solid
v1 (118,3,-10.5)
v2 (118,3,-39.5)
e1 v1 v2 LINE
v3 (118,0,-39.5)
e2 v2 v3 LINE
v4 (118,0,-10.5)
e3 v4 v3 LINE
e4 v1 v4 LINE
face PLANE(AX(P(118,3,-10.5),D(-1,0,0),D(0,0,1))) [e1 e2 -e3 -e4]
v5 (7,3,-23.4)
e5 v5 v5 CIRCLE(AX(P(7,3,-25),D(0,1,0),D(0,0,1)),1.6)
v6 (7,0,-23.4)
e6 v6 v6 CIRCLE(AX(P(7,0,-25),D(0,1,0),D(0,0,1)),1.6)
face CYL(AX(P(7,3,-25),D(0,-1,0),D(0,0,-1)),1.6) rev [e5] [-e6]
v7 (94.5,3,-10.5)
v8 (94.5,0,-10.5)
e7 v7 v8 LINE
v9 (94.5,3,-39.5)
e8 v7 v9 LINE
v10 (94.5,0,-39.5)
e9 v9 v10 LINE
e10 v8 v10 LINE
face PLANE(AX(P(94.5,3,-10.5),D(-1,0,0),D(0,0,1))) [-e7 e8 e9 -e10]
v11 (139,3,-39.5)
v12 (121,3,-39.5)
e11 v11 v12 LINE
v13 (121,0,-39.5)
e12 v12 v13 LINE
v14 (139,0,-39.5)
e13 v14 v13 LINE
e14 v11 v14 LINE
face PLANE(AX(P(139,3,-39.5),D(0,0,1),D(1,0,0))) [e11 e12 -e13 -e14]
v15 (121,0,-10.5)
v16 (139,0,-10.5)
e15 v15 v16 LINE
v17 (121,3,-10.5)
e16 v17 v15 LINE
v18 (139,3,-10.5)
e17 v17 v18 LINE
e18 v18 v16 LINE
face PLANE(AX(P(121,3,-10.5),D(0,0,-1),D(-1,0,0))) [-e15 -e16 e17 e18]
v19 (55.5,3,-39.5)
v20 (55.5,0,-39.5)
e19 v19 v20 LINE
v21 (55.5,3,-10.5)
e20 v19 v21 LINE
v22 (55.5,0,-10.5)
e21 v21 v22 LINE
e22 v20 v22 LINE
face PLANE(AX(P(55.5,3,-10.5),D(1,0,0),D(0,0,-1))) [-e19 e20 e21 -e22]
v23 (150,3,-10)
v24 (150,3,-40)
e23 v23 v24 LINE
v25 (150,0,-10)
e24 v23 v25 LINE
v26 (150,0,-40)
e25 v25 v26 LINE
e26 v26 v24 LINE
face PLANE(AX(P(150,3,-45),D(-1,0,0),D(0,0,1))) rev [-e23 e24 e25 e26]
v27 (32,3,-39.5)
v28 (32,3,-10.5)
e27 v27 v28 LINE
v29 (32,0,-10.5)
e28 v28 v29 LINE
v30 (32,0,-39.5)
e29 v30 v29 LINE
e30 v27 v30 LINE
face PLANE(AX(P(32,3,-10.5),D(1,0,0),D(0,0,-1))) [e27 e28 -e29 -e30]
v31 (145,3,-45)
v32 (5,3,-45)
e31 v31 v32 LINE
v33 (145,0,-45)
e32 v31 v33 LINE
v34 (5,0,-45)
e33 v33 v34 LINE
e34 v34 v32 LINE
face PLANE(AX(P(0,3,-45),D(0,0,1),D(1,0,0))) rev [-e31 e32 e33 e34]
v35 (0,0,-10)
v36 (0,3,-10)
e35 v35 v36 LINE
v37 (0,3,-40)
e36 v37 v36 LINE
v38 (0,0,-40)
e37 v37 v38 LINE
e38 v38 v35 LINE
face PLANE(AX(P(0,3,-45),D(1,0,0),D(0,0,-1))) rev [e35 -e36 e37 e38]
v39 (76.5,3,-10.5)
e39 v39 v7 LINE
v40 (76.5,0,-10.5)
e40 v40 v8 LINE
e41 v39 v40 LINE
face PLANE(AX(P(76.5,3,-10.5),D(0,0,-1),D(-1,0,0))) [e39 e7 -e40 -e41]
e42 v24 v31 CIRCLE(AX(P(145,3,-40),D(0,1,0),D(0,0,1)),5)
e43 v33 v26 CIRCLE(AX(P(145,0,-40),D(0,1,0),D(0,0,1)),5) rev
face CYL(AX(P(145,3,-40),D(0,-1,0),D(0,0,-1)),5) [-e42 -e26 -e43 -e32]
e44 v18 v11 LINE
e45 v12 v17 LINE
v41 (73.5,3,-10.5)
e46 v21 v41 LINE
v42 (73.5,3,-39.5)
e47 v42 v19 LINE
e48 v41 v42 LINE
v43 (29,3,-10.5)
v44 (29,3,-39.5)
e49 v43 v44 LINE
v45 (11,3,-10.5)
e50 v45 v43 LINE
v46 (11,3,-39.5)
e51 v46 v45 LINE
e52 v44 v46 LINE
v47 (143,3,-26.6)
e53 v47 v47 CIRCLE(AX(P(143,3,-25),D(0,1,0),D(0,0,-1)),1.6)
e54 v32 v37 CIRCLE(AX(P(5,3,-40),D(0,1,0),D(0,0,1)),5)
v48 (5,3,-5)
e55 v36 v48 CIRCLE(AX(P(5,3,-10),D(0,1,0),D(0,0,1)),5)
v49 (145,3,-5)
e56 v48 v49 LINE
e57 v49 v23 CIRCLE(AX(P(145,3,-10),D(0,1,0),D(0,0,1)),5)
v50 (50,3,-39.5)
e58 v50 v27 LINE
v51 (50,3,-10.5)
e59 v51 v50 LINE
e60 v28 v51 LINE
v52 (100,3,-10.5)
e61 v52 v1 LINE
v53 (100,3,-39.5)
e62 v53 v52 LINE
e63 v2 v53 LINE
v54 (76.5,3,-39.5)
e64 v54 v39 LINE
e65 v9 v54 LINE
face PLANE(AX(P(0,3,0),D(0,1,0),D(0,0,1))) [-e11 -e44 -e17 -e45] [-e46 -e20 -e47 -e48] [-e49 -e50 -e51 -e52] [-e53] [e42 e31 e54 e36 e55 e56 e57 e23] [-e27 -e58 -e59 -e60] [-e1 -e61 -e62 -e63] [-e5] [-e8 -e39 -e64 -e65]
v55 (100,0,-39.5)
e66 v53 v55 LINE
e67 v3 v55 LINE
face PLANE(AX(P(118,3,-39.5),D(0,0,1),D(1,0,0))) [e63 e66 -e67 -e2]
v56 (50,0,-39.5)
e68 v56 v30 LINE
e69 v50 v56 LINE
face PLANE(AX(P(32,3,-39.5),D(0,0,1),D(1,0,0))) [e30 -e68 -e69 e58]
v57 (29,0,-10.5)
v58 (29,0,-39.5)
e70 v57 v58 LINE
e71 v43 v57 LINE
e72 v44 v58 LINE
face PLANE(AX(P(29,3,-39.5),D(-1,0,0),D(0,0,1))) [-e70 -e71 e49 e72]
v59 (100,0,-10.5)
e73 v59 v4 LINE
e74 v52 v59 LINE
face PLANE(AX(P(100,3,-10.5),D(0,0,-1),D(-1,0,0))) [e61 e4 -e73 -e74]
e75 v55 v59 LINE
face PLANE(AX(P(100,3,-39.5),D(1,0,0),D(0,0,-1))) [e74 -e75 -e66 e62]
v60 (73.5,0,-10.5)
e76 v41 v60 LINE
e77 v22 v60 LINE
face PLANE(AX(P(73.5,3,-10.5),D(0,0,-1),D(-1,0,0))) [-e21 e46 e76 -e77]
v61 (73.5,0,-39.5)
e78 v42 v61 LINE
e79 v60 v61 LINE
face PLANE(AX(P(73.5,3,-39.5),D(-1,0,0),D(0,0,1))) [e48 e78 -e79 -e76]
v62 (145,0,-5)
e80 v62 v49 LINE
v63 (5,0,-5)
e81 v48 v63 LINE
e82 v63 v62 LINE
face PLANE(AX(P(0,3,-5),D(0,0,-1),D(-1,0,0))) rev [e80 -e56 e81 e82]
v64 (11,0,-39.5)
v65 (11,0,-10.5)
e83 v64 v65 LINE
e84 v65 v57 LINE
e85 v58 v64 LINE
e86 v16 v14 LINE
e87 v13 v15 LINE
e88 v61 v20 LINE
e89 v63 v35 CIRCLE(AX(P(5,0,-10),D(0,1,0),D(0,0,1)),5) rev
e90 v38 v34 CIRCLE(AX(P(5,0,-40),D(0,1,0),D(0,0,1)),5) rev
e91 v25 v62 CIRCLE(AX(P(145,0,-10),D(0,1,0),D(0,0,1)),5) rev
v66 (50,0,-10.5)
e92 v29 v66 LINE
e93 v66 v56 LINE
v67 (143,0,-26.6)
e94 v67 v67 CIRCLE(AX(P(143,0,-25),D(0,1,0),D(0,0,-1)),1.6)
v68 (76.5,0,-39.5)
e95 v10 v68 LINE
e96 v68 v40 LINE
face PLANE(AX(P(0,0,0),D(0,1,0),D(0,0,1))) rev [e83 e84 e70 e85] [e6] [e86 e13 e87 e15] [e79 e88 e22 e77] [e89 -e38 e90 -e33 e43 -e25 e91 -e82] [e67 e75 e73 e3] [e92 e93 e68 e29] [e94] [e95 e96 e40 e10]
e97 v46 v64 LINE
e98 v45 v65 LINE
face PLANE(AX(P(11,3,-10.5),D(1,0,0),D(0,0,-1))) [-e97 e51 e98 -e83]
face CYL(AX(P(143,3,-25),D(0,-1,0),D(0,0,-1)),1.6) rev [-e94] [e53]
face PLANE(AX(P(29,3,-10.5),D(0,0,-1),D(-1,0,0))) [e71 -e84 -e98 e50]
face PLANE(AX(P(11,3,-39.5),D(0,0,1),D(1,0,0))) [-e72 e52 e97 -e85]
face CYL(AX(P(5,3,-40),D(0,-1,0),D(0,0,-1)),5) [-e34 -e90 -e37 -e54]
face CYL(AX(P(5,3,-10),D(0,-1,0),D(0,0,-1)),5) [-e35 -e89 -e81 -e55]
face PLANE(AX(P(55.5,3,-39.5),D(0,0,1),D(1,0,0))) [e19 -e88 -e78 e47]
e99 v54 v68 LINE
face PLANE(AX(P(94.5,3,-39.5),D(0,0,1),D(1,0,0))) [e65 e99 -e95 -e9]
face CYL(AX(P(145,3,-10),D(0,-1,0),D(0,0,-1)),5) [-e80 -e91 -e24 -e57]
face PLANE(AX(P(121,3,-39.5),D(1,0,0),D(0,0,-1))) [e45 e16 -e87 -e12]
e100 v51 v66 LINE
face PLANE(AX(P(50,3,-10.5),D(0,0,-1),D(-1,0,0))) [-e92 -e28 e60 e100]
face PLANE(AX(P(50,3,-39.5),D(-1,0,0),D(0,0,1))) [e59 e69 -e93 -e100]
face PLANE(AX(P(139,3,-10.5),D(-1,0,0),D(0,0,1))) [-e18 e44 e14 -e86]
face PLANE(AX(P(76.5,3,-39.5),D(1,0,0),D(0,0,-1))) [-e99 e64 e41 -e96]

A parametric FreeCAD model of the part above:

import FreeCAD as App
import Part
import Sketcher

V = App.Vector
Q = App.Units.Quantity


def edges_at(feature, points):
    """Names of the edges that pass closest to the given points."""
    edges = feature.Shape.Edges
    near = lambda p: min(range(len(edges)), key=lambda i: edges[i].distToShape(Part.Vertex(*p))[0])
    return sorted({f"Edge{near(p) + 1}" for p in points})


def add_polygon(sketch, points):
    """Adds a closed chain of lines whose ends are joined by coincident constraints."""
    first, n = sketch.GeometryCount, len(points)
    for a, b in zip(points, points[1:] + points[:1]):
        sketch.addGeometry(Part.LineSegment(App.Vector(*a, 0), App.Vector(*b, 0)), False)
    for i in range(n):
        sketch.addConstraint(Sketcher.Constraint("Coincident", first + i, 2, first + (i + 1) % n, 1))

doc = App.newDocument("Part")
params = doc.addObject("Spreadsheet::Sheet", "Params")
for row, (alias, value) in enumerate([
    ("sketch1_diameter", "3.2 mm"),
    ("sketch1_width", "150 mm"),
    ("sketch1_width2", "18 mm"),
    ("sketch1_height", "40 mm"),
    ("sketch1_height2", "29 mm"),
    ("pad1_length", "3 mm"),
    ("fillet_radius", "5 mm"),
], start=1):
    params.set(f"A{row}", alias)
    params.set(f"B{row}", "=" + value)
    params.setAlias(f"B{row}", alias)

body = doc.addObject("PartDesign::Body", "Body")

# Sketch on XZ plane
sketch1 = body.newObject("Sketcher::SketchObject", "Sketch")
sketch1.AttachmentSupport = (doc.getObject("XZ_Plane"), [""])
sketch1.MapMode = "FlatFace"
add_polygon(sketch1, [(0, -45), (0, -5), (150, -5), (150, -45)])  # lines 0-3
add_polygon(sketch1, [(29, -10.5), (11, -10.5), (11, -39.5), (29, -39.5)])  # lines 4-7
add_polygon(sketch1, [(50, -10.5), (32, -10.5), (32, -39.5), (50, -39.5)])  # lines 8-11
add_polygon(sketch1, [(73.5, -10.5), (55.5, -10.5), (55.5, -39.5), (73.5, -39.5)])  # lines 12-15
add_polygon(sketch1, [(94.5, -10.5), (76.5, -10.5), (76.5, -39.5), (94.5, -39.5)])  # lines 16-19
add_polygon(sketch1, [(118, -10.5), (100, -10.5), (100, -39.5), (118, -39.5)])  # lines 20-23
add_polygon(sketch1, [(139, -10.5), (121, -10.5), (121, -39.5), (139, -39.5)])  # lines 24-27
sketch1.addGeometry(Part.Circle(V(7, -25, 0), V(0, 0, 1), 1.6), False)  # 28
sketch1.addGeometry(Part.Circle(V(143, -25, 0), V(0, 0, 1), 1.6), False)  # 29
sketch1.addConstraint(Sketcher.Constraint("Vertical", 0))
sketch1.addConstraint(Sketcher.Constraint("Horizontal", 1))
sketch1.addConstraint(Sketcher.Constraint("Vertical", 2))
sketch1.addConstraint(Sketcher.Constraint("Horizontal", 3))
sketch1.addConstraint(Sketcher.Constraint("Horizontal", 4))
sketch1.addConstraint(Sketcher.Constraint("Vertical", 5))
sketch1.addConstraint(Sketcher.Constraint("Horizontal", 6))
sketch1.addConstraint(Sketcher.Constraint("Vertical", 7))
sketch1.addConstraint(Sketcher.Constraint("Horizontal", 8))
sketch1.addConstraint(Sketcher.Constraint("Vertical", 9))
sketch1.addConstraint(Sketcher.Constraint("Horizontal", 10))
sketch1.addConstraint(Sketcher.Constraint("Vertical", 11))
sketch1.addConstraint(Sketcher.Constraint("Horizontal", 12))
sketch1.addConstraint(Sketcher.Constraint("Vertical", 13))
sketch1.addConstraint(Sketcher.Constraint("Horizontal", 14))
sketch1.addConstraint(Sketcher.Constraint("Vertical", 15))
sketch1.addConstraint(Sketcher.Constraint("Horizontal", 16))
sketch1.addConstraint(Sketcher.Constraint("Vertical", 17))
sketch1.addConstraint(Sketcher.Constraint("Horizontal", 18))
sketch1.addConstraint(Sketcher.Constraint("Vertical", 19))
sketch1.addConstraint(Sketcher.Constraint("Horizontal", 20))
sketch1.addConstraint(Sketcher.Constraint("Vertical", 21))
sketch1.addConstraint(Sketcher.Constraint("Horizontal", 22))
sketch1.addConstraint(Sketcher.Constraint("Vertical", 23))
sketch1.addConstraint(Sketcher.Constraint("Horizontal", 24))
sketch1.addConstraint(Sketcher.Constraint("Vertical", 25))
sketch1.addConstraint(Sketcher.Constraint("Horizontal", 26))
sketch1.addConstraint(Sketcher.Constraint("Vertical", 27))
sketch1.addConstraint(Sketcher.Constraint("Equal", 28, 29))
sketch1.addConstraint(Sketcher.Constraint("PointOnObject", 0, 2, -2))
sketch1.addConstraint(Sketcher.Constraint("Horizontal", 28, 3, 29, 3))
sketch1.addConstraint(Sketcher.Constraint("Horizontal", 7, 2, 8, 2))
sketch1.addConstraint(Sketcher.Constraint("Horizontal", 6, 2, 9, 2))
sketch1.addConstraint(Sketcher.Constraint("Horizontal", 11, 2, 12, 2))
sketch1.addConstraint(Sketcher.Constraint("Horizontal", 10, 2, 13, 2))
sketch1.addConstraint(Sketcher.Constraint("Horizontal", 15, 2, 16, 2))
sketch1.addConstraint(Sketcher.Constraint("Horizontal", 14, 2, 17, 2))
sketch1.addConstraint(Sketcher.Constraint("Horizontal", 19, 2, 20, 2))
sketch1.addConstraint(Sketcher.Constraint("Horizontal", 18, 2, 21, 2))
sketch1.addConstraint(Sketcher.Constraint("Horizontal", 23, 2, 24, 2))
sketch1.addConstraint(Sketcher.Constraint("Horizontal", 22, 2, 25, 2))
sketch1.addConstraint(Sketcher.Constraint("Equal", 6, 8))
sketch1.addConstraint(Sketcher.Constraint("Equal", 10, 12))
sketch1.addConstraint(Sketcher.Constraint("Equal", 14, 16))
sketch1.addConstraint(Sketcher.Constraint("Equal", 18, 20))
sketch1.addConstraint(Sketcher.Constraint("Equal", 22, 24))
sketch1.addConstraint(Sketcher.Constraint("Diameter", 28, Q("3.2 mm")))
sketch1.addConstraint(Sketcher.Constraint("DistanceX", 1, 1, 1, 2, Q("150 mm")))
sketch1.addConstraint(Sketcher.Constraint("DistanceX", 4, 2, 4, 1, Q("18 mm")))
sketch1.addConstraint(Sketcher.Constraint("DistanceY", 0, 1, 0, 2, Q("40 mm")))
sketch1.addConstraint(Sketcher.Constraint("DistanceY", 5, 2, 5, 1, Q("29 mm")))
sketch1.addConstraint(Sketcher.Constraint("DistanceX", -1, 1, 28, 3, Q("7 mm")))
sketch1.addConstraint(Sketcher.Constraint("DistanceY", 28, 3, -1, 1, Q("25 mm")))
sketch1.addConstraint(Sketcher.Constraint("DistanceX", -1, 1, 29, 3, Q("143 mm")))
sketch1.addConstraint(Sketcher.Constraint("DistanceY", 0, 2, -1, 1, Q("5 mm")))
sketch1.addConstraint(Sketcher.Constraint("DistanceX", -1, 1, 4, 2, Q("11 mm")))
sketch1.addConstraint(Sketcher.Constraint("DistanceX", -1, 1, 8, 2, Q("32 mm")))
sketch1.addConstraint(Sketcher.Constraint("DistanceX", -1, 1, 20, 2, Q("100 mm")))
sketch1.addConstraint(Sketcher.Constraint("DistanceX", -1, 1, 24, 2, Q("121 mm")))
sketch1.addConstraint(Sketcher.Constraint("DistanceX", 15, 2, 16, 2, Q("3 mm")))
sketch1.addConstraint(Sketcher.Constraint("DistanceY", 4, 2, -1, 1, Q("10.5 mm")))
sketch1.addConstraint(Sketcher.Constraint("DistanceX", -1, 1, 12, 2, Q("55.5 mm")))
sketch1.setExpression("Constraints[74]", "Params.sketch1_diameter")
sketch1.setExpression("Constraints[75]", "Params.sketch1_width")
sketch1.setExpression("Constraints[76]", "Params.sketch1_width2")
sketch1.setExpression("Constraints[77]", "Params.sketch1_height")
sketch1.setExpression("Constraints[78]", "Params.sketch1_height2")
pad1 = body.newObject("PartDesign::Pad", "Pad")
pad1.Profile = sketch1
pad1.setExpression("Length", "Params.pad1_length")
pad1.Reversed = True
doc.recompute()

fillet = body.newObject("PartDesign::Fillet", "Fillet")
fillet.Base = (pad1, edges_at(pad1, [
    (0, 1.5, -45),
    (150, 1.5, -45),
    (150, 1.5, -5),
    (0, 1.5, -5),
]))
fillet.setExpression("Radius", "Params.fillet_radius")

doc.recompute()
